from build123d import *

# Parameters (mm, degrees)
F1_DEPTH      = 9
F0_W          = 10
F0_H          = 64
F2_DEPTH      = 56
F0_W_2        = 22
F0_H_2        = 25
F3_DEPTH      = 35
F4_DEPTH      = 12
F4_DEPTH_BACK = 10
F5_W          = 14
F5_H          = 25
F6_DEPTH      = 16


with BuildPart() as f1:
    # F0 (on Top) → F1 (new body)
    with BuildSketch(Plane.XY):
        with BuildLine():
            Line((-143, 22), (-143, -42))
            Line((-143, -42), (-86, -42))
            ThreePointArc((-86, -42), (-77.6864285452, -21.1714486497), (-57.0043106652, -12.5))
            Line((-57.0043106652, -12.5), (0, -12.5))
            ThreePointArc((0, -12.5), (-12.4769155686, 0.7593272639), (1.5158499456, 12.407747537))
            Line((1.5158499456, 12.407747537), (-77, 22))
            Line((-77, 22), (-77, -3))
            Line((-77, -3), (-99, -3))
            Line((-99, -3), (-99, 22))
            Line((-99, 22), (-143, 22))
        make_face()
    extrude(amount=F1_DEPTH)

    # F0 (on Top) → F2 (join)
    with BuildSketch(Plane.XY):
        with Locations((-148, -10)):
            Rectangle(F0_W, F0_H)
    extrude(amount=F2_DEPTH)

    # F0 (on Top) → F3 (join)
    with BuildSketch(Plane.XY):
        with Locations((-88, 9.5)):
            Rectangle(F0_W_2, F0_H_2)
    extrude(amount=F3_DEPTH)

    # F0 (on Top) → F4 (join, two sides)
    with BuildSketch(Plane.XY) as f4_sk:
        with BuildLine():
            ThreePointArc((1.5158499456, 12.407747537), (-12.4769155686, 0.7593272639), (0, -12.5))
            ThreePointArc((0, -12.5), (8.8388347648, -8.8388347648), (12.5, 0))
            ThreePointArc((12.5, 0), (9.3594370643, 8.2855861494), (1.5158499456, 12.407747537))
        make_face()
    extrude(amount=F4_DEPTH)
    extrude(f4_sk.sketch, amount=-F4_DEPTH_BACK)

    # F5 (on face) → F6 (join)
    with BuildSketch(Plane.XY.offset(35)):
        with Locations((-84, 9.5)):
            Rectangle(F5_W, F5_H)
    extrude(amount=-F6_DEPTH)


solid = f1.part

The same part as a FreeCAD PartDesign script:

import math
import FreeCAD as App
import Part
import Sketcher

V = App.Vector
Q = App.Units.Quantity


def add_polygon(sketch, points):
    """Adds a closed chain of lines whose ends are joined by coincident constraints."""
    first, n = sketch.GeometryCount, len(points)
    for a, b in zip(points, points[1:] + points[:1]):
        sketch.addGeometry(Part.LineSegment(App.Vector(*a, 0), App.Vector(*b, 0)), False)
    for i in range(n):
        sketch.addConstraint(Sketcher.Constraint("Coincident", first + i, 2, first + (i + 1) % n, 1))

doc = App.newDocument("Part")
body = doc.addObject("PartDesign::Body", "Body")

sketch1 = body.newObject("Sketcher::SketchObject", "Sketch")
sketch1.AttachmentSupport = (doc.getObject("XY_Plane"), [""])
sketch1.MapMode = "FlatFace"
sketch1.addGeometry([
    Part.LineSegment(V(-143, 22, 0), V(-143, -42, 0)),
    Part.LineSegment(V(-143, -42, 0), V(-86, -42, 0)),
    Part.ArcOfCircle(Part.Circle(V(-57, -42, 0), V(0, 0, 1), 29), math.radians(90), math.radians(181)),
    Part.LineSegment(V(-57, -12, 0), V(0, -12, 0)),
    Part.ArcOfCircle(Part.Circle(V(0, 0, 0), V(0, 0, 1), 12), math.radians(83), math.radians(270)),
    Part.LineSegment(V(2, 12, 0), V(-77, 22, 0)),
    Part.LineSegment(V(-77, 22, 0), V(-77, -3, 0)),
    Part.LineSegment(V(-77, -3, 0), V(-99, -3, 0)),
    Part.LineSegment(V(-99, -3, 0), V(-99, 22, 0)),
    Part.LineSegment(V(-99, 22, 0), V(-143, 22, 0)),
], False)
sketch1.addConstraint([
    Sketcher.Constraint("Coincident", 0, 2, 1, 1),
    Sketcher.Constraint("Coincident", 1, 2, 2, 2),
    Sketcher.Constraint("Tangent", 2, 1, 3, 1),
    Sketcher.Constraint("Tangent", 3, 2, 4, 2),
    Sketcher.Constraint("Tangent", 4, 1, 5, 1),
    Sketcher.Constraint("Coincident", 5, 2, 6, 1),
    Sketcher.Constraint("Coincident", 6, 2, 7, 1),
    Sketcher.Constraint("Coincident", 7, 2, 8, 1),
    Sketcher.Constraint("Coincident", 8, 2, 9, 1),
    Sketcher.Constraint("Coincident", 9, 2, 0, 1),
    Sketcher.Constraint("Vertical", 0),
    Sketcher.Constraint("Horizontal", 1),
    Sketcher.Constraint("Horizontal", 3),
    Sketcher.Constraint("Vertical", 6),
    Sketcher.Constraint("Horizontal", 7),
    Sketcher.Constraint("Vertical", 8),
    Sketcher.Constraint("Horizontal", 9),
    Sketcher.Constraint("Coincident", 4, 3, -1, 1),
    Sketcher.Constraint("Horizontal", 5, 2, 8, 2),
    Sketcher.Constraint("Radius", 2, Q("29 mm")),
    Sketcher.Constraint("Radius", 4, Q("12.5 mm")),
    Sketcher.Constraint("DistanceX", 1, 1, 1, 2, Q("57 mm")),
    Sketcher.Constraint("DistanceX", 7, 2, 7, 1, Q("22 mm")),
    Sketcher.Constraint("DistanceX", 9, 2, 9, 1, Q("44 mm")),
    Sketcher.Constraint("DistanceY", 0, 2, 0, 1, Q("64 mm")),
    Sketcher.Constraint("DistanceY", 6, 2, 6, 1, Q("25 mm")),
    Sketcher.Constraint("DistanceX", 0, 2, -1, 1, Q("143 mm")),
    Sketcher.Constraint("DistanceY", 0, 2, -1, 1, Q("42 mm")),
])
pad1 = body.newObject("PartDesign::Pad", "Pad")
pad1.Profile = sketch1
pad1.Length = 9

sketch2 = body.newObject("Sketcher::SketchObject", "Sketch001")
sketch2.AttachmentSupport = (doc.getObject("XY_Plane"), [""])
sketch2.MapMode = "FlatFace"
add_polygon(sketch2, [(-153, 22), (-153, -42), (-143, -42), (-143, 22)])
sketch2.addConstraint([
    Sketcher.Constraint("Vertical", 0),
    Sketcher.Constraint("Horizontal", 1),
    Sketcher.Constraint("Vertical", 2),
    Sketcher.Constraint("Horizontal", 3),
    Sketcher.Constraint("DistanceX", 1, 1, 1, 2, Q("10 mm")),
    Sketcher.Constraint("DistanceY", 0, 2, 0, 1, Q("64 mm")),
    Sketcher.Constraint("DistanceX", 0, 2, -1, 1, Q("153 mm")),
    Sketcher.Constraint("DistanceY", 0, 2, -1, 1, Q("42 mm")),
])
pad2 = body.newObject("PartDesign::Pad", "Pad001")
pad2.Profile = sketch2
pad2.Length = 56

sketch3 = body.newObject("Sketcher::SketchObject", "Sketch002")
sketch3.AttachmentSupport = (doc.getObject("XY_Plane"), [""])
sketch3.MapMode = "FlatFace"
add_polygon(sketch3, [(-99, 22), (-99, -3), (-77, -3), (-77, 22)])
sketch3.addConstraint([
    Sketcher.Constraint("Vertical", 0),
    Sketcher.Constraint("Horizontal", 1),
    Sketcher.Constraint("Vertical", 2),
    Sketcher.Constraint("Horizontal", 3),
    Sketcher.Constraint("DistanceX", 1, 1, 1, 2, Q("22 mm")),
    Sketcher.Constraint("DistanceY", 0, 2, 0, 1, Q("25 mm")),
    Sketcher.Constraint("DistanceX", 0, 2, -1, 1, Q("99 mm")),
    Sketcher.Constraint("DistanceY", 0, 2, -1, 1, Q("3 mm")),
])
pad3 = body.newObject("PartDesign::Pad", "Pad002")
pad3.Profile = sketch3
pad3.Length = 35

sketch4 = body.newObject("Sketcher::SketchObject", "Sketch003")
sketch4.AttachmentSupport = (doc.getObject("XY_Plane"), [""])
sketch4.MapMode = "FlatFace"
sketch4.addGeometry([
    Part.ArcOfCircle(Part.Circle(V(0, 0, 0), V(0, 0, 1), 12), math.radians(-90), math.radians(0)),
    Part.ArcOfCircle(Part.Circle(V(0, 0, 0), V(0, 0, 1), 12), math.radians(0), math.radians(270)),
], False)
sketch4.addConstraint([
    Sketcher.Constraint("Tangent", 0, 1, 1, 2),
    Sketcher.Constraint("Coincident", 1, 1, 0, 2),
    Sketcher.Constraint("Coincident", 0, 3, -1, 1),
    Sketcher.Constraint("PointOnObject", 0, 1, -2),
    Sketcher.Constraint("PointOnObject", 1, 1, -1),
    Sketcher.Constraint("Radius", 0, Q("12.5 mm")),
])
pad4 = body.newObject("PartDesign::Pad", "Pad003")
pad4.Profile = sketch4
pad4.Type = "TwoLengths"
pad4.Length = 12
pad4.Length2 = 10

sketch5 = body.newObject("Sketcher::SketchObject", "Sketch004")
sketch5.AttachmentSupport = (doc.getObject("XY_Plane"), [""])
sketch5.MapMode = "FlatFace"
sketch5.AttachmentOffset = App.Placement(V(0, 0, 35), App.Rotation())
add_polygon(sketch5, [(-91, 22), (-91, -3), (-77, -3), (-77, 22)])
sketch5.addConstraint([
    Sketcher.Constraint("Vertical", 0),
    Sketcher.Constraint("Horizontal", 1),
    Sketcher.Constraint("Vertical", 2),
    Sketcher.Constraint("Horizontal", 3),
    Sketcher.Constraint("DistanceX", 1, 1, 1, 2, Q("14 mm")),
    Sketcher.Constraint("DistanceY", 0, 2, 0, 1, Q("25 mm")),
    Sketcher.Constraint("DistanceX", 0, 2, -1, 1, Q("91 mm")),
    Sketcher.Constraint("DistanceY", 0, 2, -1, 1, Q("3 mm")),
])
pad5 = body.newObject("PartDesign::Pad", "Pad004")
pad5.Profile = sketch5
pad5.Length = 16
pad5.Reversed = True

doc.recompute()
